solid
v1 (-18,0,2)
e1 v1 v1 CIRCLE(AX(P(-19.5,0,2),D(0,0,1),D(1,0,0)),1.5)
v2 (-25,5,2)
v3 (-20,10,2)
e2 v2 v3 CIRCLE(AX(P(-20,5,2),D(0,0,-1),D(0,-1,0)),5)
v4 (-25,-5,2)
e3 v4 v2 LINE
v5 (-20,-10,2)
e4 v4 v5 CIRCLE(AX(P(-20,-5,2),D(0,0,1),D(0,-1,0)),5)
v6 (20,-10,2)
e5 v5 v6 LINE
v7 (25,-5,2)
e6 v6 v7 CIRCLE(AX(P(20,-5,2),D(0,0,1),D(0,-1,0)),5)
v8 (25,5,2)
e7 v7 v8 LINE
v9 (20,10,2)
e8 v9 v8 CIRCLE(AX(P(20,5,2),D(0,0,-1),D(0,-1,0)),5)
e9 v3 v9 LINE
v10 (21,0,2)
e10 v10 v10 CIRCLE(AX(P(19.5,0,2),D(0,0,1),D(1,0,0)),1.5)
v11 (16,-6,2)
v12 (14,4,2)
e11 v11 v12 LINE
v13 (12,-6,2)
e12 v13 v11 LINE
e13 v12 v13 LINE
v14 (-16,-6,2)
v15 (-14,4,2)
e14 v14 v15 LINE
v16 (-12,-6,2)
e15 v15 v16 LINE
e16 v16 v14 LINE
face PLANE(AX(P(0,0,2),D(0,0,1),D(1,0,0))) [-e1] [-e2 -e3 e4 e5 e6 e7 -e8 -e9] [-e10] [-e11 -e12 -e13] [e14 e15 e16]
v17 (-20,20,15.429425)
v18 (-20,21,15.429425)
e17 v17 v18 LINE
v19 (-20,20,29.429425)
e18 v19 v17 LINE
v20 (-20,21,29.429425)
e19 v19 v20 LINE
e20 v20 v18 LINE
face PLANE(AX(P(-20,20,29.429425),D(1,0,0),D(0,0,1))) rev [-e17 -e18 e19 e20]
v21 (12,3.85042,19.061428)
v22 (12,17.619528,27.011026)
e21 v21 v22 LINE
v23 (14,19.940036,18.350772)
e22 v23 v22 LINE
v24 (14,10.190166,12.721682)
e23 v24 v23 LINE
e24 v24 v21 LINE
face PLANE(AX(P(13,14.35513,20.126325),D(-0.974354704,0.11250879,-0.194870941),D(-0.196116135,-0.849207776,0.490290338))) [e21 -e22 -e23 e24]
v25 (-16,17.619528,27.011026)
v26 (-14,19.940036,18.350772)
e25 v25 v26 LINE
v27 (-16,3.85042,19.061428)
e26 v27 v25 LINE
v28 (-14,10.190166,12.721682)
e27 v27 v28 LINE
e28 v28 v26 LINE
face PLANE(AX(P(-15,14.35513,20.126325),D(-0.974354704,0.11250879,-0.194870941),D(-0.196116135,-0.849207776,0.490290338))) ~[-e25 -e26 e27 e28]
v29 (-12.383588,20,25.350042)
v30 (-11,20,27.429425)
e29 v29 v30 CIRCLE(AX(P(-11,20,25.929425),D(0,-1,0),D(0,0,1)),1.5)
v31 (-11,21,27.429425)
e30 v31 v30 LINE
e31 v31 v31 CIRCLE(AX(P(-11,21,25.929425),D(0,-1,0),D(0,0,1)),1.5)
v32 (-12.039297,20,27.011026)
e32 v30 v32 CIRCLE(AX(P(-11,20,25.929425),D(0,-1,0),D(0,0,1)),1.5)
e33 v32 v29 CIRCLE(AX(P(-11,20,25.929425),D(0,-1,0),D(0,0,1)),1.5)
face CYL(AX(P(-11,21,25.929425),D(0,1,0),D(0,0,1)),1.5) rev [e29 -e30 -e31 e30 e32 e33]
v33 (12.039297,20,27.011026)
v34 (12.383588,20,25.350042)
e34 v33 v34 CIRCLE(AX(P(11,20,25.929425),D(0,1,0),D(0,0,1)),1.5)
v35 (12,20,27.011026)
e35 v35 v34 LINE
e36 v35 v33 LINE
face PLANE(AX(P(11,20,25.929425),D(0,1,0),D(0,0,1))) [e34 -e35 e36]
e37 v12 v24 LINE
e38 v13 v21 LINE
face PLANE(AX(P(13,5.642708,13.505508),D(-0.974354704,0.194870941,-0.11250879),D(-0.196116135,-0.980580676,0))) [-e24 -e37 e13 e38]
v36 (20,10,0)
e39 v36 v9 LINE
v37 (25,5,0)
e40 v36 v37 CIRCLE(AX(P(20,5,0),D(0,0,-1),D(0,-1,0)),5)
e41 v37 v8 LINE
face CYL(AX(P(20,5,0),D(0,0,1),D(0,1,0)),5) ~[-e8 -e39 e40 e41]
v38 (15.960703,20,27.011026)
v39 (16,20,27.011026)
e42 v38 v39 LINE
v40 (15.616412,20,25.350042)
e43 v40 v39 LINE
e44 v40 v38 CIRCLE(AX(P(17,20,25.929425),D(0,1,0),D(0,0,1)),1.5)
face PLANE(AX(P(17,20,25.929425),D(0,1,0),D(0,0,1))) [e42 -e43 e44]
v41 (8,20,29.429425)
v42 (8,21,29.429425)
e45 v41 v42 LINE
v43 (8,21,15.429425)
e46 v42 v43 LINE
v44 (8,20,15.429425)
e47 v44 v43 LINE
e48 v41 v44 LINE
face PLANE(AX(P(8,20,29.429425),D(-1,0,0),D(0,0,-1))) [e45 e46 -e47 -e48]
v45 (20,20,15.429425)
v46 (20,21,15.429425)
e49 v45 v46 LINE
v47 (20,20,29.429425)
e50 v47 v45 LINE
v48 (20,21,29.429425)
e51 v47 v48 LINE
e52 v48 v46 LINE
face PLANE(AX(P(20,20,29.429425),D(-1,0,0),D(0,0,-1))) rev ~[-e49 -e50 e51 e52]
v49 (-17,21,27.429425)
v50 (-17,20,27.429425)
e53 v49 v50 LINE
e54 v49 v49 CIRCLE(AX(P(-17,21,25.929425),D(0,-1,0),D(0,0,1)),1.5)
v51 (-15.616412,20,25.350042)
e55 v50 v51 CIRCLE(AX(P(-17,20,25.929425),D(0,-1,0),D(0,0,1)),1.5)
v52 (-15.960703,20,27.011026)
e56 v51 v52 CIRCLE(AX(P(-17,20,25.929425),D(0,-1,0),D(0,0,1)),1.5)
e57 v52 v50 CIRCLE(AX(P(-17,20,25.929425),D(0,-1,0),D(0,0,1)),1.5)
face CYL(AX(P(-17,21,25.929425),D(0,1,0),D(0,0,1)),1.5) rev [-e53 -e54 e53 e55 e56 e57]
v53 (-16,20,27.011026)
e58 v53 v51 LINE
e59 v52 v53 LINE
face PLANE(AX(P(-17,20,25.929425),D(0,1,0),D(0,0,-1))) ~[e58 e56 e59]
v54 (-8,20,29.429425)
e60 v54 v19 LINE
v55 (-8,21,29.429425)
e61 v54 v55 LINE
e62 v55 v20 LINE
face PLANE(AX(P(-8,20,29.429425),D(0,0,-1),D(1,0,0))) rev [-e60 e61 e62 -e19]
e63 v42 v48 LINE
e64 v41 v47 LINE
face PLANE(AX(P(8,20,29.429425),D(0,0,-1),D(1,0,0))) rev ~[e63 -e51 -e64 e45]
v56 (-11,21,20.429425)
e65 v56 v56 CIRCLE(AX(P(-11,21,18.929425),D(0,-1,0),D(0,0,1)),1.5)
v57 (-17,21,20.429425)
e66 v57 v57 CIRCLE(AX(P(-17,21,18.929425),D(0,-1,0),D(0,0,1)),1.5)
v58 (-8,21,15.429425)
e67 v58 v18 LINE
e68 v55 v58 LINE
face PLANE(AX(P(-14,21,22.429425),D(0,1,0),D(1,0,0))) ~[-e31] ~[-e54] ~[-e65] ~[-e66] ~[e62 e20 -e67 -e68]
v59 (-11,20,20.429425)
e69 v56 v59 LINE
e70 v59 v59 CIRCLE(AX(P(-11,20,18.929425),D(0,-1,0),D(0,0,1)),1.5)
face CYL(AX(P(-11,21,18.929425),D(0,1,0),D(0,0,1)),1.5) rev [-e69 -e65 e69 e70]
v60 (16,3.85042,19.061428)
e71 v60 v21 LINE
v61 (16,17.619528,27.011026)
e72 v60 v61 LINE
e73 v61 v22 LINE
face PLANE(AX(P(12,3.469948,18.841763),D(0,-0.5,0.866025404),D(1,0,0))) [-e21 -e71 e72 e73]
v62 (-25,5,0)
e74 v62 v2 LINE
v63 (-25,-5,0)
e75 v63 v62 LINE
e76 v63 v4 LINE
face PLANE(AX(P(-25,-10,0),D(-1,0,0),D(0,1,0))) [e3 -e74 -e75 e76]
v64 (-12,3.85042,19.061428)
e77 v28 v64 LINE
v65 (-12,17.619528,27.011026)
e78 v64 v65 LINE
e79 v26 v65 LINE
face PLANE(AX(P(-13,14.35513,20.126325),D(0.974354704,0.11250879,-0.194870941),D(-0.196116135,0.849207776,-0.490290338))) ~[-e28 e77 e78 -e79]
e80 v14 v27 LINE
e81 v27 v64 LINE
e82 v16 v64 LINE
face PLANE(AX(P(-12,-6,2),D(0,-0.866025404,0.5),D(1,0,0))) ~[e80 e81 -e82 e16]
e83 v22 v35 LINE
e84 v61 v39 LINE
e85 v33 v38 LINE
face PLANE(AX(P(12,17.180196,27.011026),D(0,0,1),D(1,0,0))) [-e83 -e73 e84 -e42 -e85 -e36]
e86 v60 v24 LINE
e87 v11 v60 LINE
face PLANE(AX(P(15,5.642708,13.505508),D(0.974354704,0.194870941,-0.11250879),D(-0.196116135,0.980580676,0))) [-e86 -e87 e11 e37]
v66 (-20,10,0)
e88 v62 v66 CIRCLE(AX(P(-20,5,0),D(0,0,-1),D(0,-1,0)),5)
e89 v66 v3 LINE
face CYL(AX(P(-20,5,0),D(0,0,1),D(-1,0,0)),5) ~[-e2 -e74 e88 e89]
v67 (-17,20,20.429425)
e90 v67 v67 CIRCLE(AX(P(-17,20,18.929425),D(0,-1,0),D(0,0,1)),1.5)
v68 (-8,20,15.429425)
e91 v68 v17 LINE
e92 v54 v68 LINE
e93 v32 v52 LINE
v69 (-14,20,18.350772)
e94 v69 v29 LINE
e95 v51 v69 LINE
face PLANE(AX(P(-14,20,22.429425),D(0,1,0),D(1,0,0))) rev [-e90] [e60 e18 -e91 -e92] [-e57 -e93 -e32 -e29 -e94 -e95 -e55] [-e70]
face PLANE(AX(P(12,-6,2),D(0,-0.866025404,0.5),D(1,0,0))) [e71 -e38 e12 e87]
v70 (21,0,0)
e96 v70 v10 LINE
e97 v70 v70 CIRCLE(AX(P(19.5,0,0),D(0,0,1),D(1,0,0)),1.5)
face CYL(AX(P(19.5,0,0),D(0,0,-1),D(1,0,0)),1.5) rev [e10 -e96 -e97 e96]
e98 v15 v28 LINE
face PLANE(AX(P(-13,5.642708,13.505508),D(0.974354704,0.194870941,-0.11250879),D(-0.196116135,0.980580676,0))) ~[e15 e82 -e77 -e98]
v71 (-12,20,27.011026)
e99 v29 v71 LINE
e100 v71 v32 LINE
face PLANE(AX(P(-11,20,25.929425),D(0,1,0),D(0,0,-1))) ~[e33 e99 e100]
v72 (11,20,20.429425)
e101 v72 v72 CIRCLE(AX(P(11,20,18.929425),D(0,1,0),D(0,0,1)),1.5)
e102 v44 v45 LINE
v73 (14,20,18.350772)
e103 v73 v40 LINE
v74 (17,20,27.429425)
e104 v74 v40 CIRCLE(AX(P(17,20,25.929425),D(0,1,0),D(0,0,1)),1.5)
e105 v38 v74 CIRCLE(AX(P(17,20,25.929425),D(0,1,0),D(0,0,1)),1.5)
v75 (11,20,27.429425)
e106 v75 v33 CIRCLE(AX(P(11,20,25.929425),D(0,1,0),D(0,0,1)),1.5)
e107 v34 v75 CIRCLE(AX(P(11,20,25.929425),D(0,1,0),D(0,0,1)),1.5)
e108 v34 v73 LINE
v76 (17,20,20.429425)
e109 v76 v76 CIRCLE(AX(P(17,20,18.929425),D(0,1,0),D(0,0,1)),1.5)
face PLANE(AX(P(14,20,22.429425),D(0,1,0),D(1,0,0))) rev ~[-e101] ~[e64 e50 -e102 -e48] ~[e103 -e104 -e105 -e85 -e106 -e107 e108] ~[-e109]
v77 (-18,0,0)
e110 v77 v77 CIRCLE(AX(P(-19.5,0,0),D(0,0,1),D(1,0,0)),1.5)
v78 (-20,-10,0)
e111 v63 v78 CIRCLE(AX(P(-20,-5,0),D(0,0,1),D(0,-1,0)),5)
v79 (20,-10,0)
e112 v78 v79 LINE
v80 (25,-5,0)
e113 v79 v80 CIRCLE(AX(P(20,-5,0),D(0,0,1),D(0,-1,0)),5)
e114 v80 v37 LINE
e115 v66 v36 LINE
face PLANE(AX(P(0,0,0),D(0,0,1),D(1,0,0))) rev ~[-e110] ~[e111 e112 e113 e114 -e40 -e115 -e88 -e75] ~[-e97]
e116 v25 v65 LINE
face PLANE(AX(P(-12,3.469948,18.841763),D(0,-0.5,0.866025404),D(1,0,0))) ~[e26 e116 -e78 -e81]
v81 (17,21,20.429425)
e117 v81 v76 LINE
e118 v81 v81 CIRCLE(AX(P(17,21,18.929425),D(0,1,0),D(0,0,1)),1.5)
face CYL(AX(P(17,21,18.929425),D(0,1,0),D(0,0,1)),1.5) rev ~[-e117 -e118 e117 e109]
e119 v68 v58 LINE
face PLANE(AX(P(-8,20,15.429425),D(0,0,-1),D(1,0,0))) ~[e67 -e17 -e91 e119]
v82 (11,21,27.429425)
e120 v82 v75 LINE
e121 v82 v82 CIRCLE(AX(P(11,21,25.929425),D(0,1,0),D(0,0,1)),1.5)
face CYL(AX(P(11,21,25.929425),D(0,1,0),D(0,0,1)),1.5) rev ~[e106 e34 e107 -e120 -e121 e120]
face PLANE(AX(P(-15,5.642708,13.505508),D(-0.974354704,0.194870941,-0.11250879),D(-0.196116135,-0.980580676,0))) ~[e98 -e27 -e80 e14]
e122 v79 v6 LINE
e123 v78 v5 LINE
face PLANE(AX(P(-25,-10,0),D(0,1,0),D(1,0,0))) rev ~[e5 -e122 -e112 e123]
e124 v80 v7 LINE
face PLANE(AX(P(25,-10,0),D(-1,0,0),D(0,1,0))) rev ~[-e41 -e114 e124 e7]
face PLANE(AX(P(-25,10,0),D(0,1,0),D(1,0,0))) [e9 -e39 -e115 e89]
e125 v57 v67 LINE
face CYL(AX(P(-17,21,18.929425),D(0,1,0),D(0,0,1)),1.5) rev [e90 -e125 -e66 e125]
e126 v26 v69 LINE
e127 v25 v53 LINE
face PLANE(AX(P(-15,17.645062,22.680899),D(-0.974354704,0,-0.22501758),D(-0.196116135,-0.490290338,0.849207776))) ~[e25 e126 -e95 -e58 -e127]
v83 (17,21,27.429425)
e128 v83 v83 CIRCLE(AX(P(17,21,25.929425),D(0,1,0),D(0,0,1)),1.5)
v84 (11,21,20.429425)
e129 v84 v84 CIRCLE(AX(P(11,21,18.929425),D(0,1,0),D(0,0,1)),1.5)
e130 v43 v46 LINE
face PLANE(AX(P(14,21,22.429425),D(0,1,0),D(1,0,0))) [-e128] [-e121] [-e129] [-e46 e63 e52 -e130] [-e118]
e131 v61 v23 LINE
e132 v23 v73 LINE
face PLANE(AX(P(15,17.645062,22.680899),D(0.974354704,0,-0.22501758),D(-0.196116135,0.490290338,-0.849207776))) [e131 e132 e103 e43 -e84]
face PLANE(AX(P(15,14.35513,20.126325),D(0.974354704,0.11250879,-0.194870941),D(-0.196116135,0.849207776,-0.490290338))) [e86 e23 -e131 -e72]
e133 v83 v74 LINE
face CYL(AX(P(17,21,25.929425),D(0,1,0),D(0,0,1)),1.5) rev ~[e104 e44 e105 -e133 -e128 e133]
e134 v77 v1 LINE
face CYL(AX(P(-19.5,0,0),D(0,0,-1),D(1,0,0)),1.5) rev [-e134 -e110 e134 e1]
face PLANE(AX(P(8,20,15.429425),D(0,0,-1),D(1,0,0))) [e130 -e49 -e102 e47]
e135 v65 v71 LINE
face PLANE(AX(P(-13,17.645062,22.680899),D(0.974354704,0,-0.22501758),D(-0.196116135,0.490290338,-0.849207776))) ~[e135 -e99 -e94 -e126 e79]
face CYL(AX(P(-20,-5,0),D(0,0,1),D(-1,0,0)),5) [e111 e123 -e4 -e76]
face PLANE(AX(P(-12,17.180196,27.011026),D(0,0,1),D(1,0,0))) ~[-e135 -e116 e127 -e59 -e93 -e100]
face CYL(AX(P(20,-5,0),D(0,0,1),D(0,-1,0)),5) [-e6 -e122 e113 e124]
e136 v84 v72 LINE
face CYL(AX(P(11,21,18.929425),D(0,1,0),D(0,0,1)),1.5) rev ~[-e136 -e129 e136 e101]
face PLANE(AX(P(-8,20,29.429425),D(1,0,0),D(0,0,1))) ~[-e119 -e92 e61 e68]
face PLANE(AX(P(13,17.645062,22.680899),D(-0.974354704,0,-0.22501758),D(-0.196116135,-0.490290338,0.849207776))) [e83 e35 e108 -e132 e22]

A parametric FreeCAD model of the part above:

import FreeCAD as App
import Part
import Sketcher
from FreeCAD import Vector
Q = App.Units.Quantity


def edges_at(feature, points):
    """Names of the edges that pass closest to the given points."""
    edges = feature.Shape.Edges
    near = lambda p: min(range(len(edges)), key=lambda i: edges[i].distToShape(Part.Vertex(*p))[0])
    return sorted({f"Edge{near(p) + 1}" for p in points})


def add_polygon(sketch, points):
    """Adds a closed chain of lines whose ends are joined by coincident constraints."""
    first, n = sketch.GeometryCount, len(points)
    for a, b in zip(points, points[1:] + points[:1]):
        sketch.addGeometry(Part.LineSegment(App.Vector(*a, 0), App.Vector(*b, 0)), False)
    for i in range(n):
        sketch.addConstraint(Sketcher.Constraint("Coincident", first + i, 2, first + (i + 1) % n, 1))

doc = App.newDocument("Part")
params = doc.addObject("Spreadsheet::Sheet", "Params")
for row, (alias, value) in enumerate([
    ("sketch1_diameter", "3 mm"),
    ("sketch1_width", "50 mm"),
    ("sketch1_height", "20 mm"),
    ("pad1_length", "2 mm"),
    ("fillet_radius", "5 mm"),
    ("sketch2_width", "4 mm"),
    ("sketch3_width", "4 mm"),
    ("sketch4_width", "4 mm"),
    ("pocket1_length", "8 mm"),
    ("sketch5_width", "12 mm"),
    ("sketch5_height", "14 mm"),
    ("pad2_length", "1 mm"),
    ("sketch6_diameter", "3 mm"),
    ("pocket2_length", "1 mm"),
], start=1):
    params.set(f"A{row}", alias)
    params.set(f"B{row}", "=" + value)
    params.setAlias(f"B{row}", alias)

body = doc.addObject("PartDesign::Body", "Body")

# Sketch on XY plane
sketch1 = doc.addObject("Sketcher::SketchObject", "Sketch")
body.addObject(sketch1)
sketch1.AttachmentSupport = (doc.XY_Plane, [""])
sketch1.MapMode = "FlatFace"
add_polygon(sketch1, [(-25, 10), (-25, -10), (25, -10), (25, 10)])  # lines 0-3
sketch1.addGeometry(Part.Circle(Vector(-19.5, 0, 0), Vector(0, 0, 1), 1.5), False)  # 4
sketch1.addGeometry(Part.Circle(Vector(19.5, 0, 0), Vector(0, 0, 1), 1.5), False)  # 5
sketch1.addConstraint([
    Sketcher.Constraint("Vertical", 0),
    Sketcher.Constraint("Horizontal", 1),
    Sketcher.Constraint("Vertical", 2),
    Sketcher.Constraint("Horizontal", 3),
    Sketcher.Constraint("Equal", 4, 5),
    Sketcher.Constraint("Symmetric", 4, 3, 5, 3, -1, 1),
    Sketcher.Constraint("Symmetric", 0, 2, 2, 2, -1, 1),
    Sketcher.Constraint("PointOnObject", 4, 3, -1),
    Sketcher.Constraint("Diameter", 4, Q("3 mm")),
    Sketcher.Constraint("DistanceX", 1, 1, 1, 2, Q("50 mm")),
    Sketcher.Constraint("DistanceY", 0, 2, 0, 1, Q("20 mm")),
    Sketcher.Constraint("DistanceX", 4, 3, 5, 3, Q("39 mm")),
])
sketch1.setExpression("Constraints[12]", "Params.sketch1_diameter")
sketch1.setExpression("Constraints[13]", "Params.sketch1_width")
sketch1.setExpression("Constraints[14]", "Params.sketch1_height")
pad1 = doc.addObject("PartDesign::Pad", "Pad")
body.addObject(pad1)
pad1.Profile = sketch1
pad1.setExpression("Length", "Params.pad1_length")
doc.recompute()

fillet = doc.addObject("PartDesign::Fillet", "Fillet")
body.addObject(fillet)
fillet.Base = (pad1, edges_at(pad1, [
    (25, -10, 1),
    (-25, -10, 1),
    (-25, 10, 1),
    (25, 10, 1),
]))
fillet.setExpression("Radius", "Params.fillet_radius")

# Sketch on XY plane
sketch2 = doc.addObject("Sketcher::SketchObject", "Sketch001")
body.addObject(sketch2)
sketch2.AttachmentSupport = (doc.XY_Plane, [""])
sketch2.MapMode = "FlatFace"
sketch2.AttachmentOffset = App.Placement(Vector(0, 0, 2), App.Rotation())
add_polygon(sketch2, [(14, 4), (12, -6), (16, -6)])  # lines 0-2
sketch2.addConstraint([
    Sketcher.Constraint("Horizontal", 1),
    Sketcher.Constraint("Equal", 0, 2),
    Sketcher.Constraint("DistanceX", 1, 1, 1, 2, Q("4 mm")),
    Sketcher.Constraint("DistanceX", -1, 1, 0, 2, Q("12 mm")),
    Sketcher.Constraint("DistanceY", 0, 2, -1, 1, Q("6 mm")),
    Sketcher.Constraint("DistanceY", -1, 1, 2, 2, Q("4 mm")),
])
sketch2.setExpression("Constraints[5]", "Params.sketch2_width")

# Sketch on YZ plane
sketch3 = doc.addObject("Sketcher::SketchObject", "Sketch002")
body.addObject(sketch3)
sketch3.AttachmentSupport = (doc.YZ_Plane, [""])
sketch3.MapMode = "FlatFace"
sketch3.AttachmentOffset = App.Placement(Vector(0, 0, 14), App.Rotation())
sketch3.addGeometry([
    Part.LineSegment(Vector(-4.4, 2, 0), Vector(4.9, 18, 0)),
    Part.LineSegment(Vector(4.9, 18, 0), Vector(18, 25.6, 0)),
    Part.LineSegment(Vector(18, 25.6, 0), Vector(22, 25.6, 0)),
], False)
sketch3.addConstraint([
    Sketcher.Constraint("Coincident", 0, 2, 1, 1),
    Sketcher.Constraint("Coincident", 1, 2, 2, 1),
    Sketcher.Constraint("Horizontal", 2),
    Sketcher.Constraint("DistanceX", 2, 1, 2, 2, Q("4 mm")),
    Sketcher.Constraint("Angle", 0, Q("60 deg")),
    Sketcher.Constraint("Angle", 1, Q("30 deg")),
    Sketcher.Constraint("DistanceY", -1, 1, 0, 1, Q("2 mm")),
    Sketcher.Constraint("DistanceX", -1, 1, 1, 2, Q("18 mm")),
    Sketcher.Constraint("Distance", 1, Q("15.138251 mm")),
    Sketcher.Constraint("DistanceY", -1, 1, 0, 2, Q("18.021959 mm")),
])
sketch3.setExpression("Constraints[3]", "Params.sketch3_width")
doc.recompute()

additivepipe = doc.addObject("PartDesign::AdditivePipe", "AdditivePipe")
body.addObject(additivepipe)
additivepipe.Profile = sketch2
additivepipe.Spine = (sketch3, ["Edge1", "Edge2", "Edge3"])
additivepipe.Transition = "Right corner"

# Sketch on XZ plane
sketch4 = doc.addObject("Sketcher::SketchObject", "Sketch003")
body.addObject(sketch4)
sketch4.AttachmentSupport = (doc.XZ_Plane, [""])
sketch4.MapMode = "FlatFace"
sketch4.AttachmentOffset = App.Placement(Vector(0, 0, -20), App.Rotation())
add_polygon(sketch4, [(12, 9.7), (12, 27), (16, 27), (16, 9.7)])  # lines 0-3
sketch4.addConstraint([
    Sketcher.Constraint("Vertical", 0),
    Sketcher.Constraint("Horizontal", 1),
    Sketcher.Constraint("Vertical", 2),
    Sketcher.Constraint("Horizontal", 3),
    Sketcher.Constraint("DistanceX", 1, 1, 1, 2, Q("4 mm")),
    Sketcher.Constraint("DistanceX", -1, 1, 0, 2, Q("12 mm")),
    Sketcher.Constraint("DistanceY", 0, 1, 0, 2, Q("17.320508 mm")),
    Sketcher.Constraint("DistanceY", -1, 1, 2, 2, Q("9.690518 mm")),
])
sketch4.setExpression("Constraints[8]", "Params.sketch4_width")
pocket1 = doc.addObject("PartDesign::Pocket", "Pocket")
body.addObject(pocket1)
pocket1.Profile = sketch4
pocket1.setExpression("Length", "Params.pocket1_length")

# Sketch on XZ plane
sketch5 = doc.addObject("Sketcher::SketchObject", "Sketch004")
body.addObject(sketch5)
sketch5.AttachmentSupport = (doc.XZ_Plane, [""])
sketch5.MapMode = "FlatFace"
sketch5.AttachmentOffset = App.Placement(Vector(0, 0, -20), App.Rotation())
add_polygon(sketch5, [(8, 15), (8, 29), (20, 29), (20, 15)])  # lines 0-3
sketch5.addConstraint([
    Sketcher.Constraint("Vertical", 0),
    Sketcher.Constraint("Horizontal", 1),
    Sketcher.Constraint("Vertical", 2),
    Sketcher.Constraint("Horizontal", 3),
    Sketcher.Constraint("DistanceX", 1, 1, 1, 2, Q("12 mm")),
    Sketcher.Constraint("DistanceY", 0, 1, 0, 2, Q("14 mm")),
    Sketcher.Constraint("DistanceX", -1, 1, 0, 2, Q("8 mm")),
    Sketcher.Constraint("DistanceY", -1, 1, 0, 2, Q("29.429425 mm")),
])
sketch5.setExpression("Constraints[8]", "Params.sketch5_width")
sketch5.setExpression("Constraints[9]", "Params.sketch5_height")
pad2 = doc.addObject("PartDesign::Pad", "Pad001")
body.addObject(pad2)
pad2.Profile = sketch5
pad2.setExpression("Length", "Params.pad2_length")
pad2.Reversed = True

# Sketch on XZ plane
sketch6 = doc.addObject("Sketcher::SketchObject", "Sketch005")
body.addObject(sketch6)
sketch6.AttachmentSupport = (doc.XZ_Plane, [""])
sketch6.MapMode = "FlatFace"
sketch6.AttachmentOffset = App.Placement(Vector(0, 0, -21), App.Rotation())
sketch6.addGeometry([
    Part.Circle(Vector(11, 25.9, 0), Vector(0, 0, 1), 1.5),
    Part.Circle(Vector(17, 18.9, 0), Vector(0, 0, 1), 1.5),
    Part.Circle(Vector(11, 18.9, 0), Vector(0, 0, 1), 1.5),
    Part.Circle(Vector(17, 25.9, 0), Vector(0, 0, 1), 1.5),
], False)
sketch6.addConstraint([
    Sketcher.Constraint("Equal", 0, 1),
    Sketcher.Constraint("Equal", 1, 2),
    Sketcher.Constraint("Equal", 2, 3),
    Sketcher.Constraint("Horizontal", 1, 3, 2, 3),
    Sketcher.Constraint("Horizontal", 0, 3, 3, 3),
    Sketcher.Constraint("Vertical", 0, 3, 2, 3),
    Sketcher.Constraint("Vertical", 1, 3, 3, 3),
    Sketcher.Constraint("Diameter", 0, Q("3 mm")),
    Sketcher.Constraint("DistanceX", -1, 1, 0, 3, Q("11 mm")),
    Sketcher.Constraint("DistanceX", -1, 1, 1, 3, Q("17 mm")),
    Sketcher.Constraint("DistanceY", 1, 3, 0, 3, Q("7 mm")),
    Sketcher.Constraint("DistanceY", -1, 1, 0, 3, Q("25.929425 mm")),
])
sketch6.setExpression("Constraints[7]", "Params.sketch6_diameter")
pocket2 = doc.addObject("PartDesign::Pocket", "Pocket001")
body.addObject(pocket2)
pocket2.Profile = sketch6
pocket2.setExpression("Length", "Params.pocket2_length")
pocket2.Reversed = True
doc.recompute()

mirrored = doc.addObject("PartDesign::Mirrored", "Mirrored")
body.addObject(mirrored)
mirrored.Originals = [additivepipe, pocket1, pad2, pocket2]
mirrored.MirrorPlane = (doc.YZ_Plane, [""])
body.Tip = mirrored

doc.recompute()
